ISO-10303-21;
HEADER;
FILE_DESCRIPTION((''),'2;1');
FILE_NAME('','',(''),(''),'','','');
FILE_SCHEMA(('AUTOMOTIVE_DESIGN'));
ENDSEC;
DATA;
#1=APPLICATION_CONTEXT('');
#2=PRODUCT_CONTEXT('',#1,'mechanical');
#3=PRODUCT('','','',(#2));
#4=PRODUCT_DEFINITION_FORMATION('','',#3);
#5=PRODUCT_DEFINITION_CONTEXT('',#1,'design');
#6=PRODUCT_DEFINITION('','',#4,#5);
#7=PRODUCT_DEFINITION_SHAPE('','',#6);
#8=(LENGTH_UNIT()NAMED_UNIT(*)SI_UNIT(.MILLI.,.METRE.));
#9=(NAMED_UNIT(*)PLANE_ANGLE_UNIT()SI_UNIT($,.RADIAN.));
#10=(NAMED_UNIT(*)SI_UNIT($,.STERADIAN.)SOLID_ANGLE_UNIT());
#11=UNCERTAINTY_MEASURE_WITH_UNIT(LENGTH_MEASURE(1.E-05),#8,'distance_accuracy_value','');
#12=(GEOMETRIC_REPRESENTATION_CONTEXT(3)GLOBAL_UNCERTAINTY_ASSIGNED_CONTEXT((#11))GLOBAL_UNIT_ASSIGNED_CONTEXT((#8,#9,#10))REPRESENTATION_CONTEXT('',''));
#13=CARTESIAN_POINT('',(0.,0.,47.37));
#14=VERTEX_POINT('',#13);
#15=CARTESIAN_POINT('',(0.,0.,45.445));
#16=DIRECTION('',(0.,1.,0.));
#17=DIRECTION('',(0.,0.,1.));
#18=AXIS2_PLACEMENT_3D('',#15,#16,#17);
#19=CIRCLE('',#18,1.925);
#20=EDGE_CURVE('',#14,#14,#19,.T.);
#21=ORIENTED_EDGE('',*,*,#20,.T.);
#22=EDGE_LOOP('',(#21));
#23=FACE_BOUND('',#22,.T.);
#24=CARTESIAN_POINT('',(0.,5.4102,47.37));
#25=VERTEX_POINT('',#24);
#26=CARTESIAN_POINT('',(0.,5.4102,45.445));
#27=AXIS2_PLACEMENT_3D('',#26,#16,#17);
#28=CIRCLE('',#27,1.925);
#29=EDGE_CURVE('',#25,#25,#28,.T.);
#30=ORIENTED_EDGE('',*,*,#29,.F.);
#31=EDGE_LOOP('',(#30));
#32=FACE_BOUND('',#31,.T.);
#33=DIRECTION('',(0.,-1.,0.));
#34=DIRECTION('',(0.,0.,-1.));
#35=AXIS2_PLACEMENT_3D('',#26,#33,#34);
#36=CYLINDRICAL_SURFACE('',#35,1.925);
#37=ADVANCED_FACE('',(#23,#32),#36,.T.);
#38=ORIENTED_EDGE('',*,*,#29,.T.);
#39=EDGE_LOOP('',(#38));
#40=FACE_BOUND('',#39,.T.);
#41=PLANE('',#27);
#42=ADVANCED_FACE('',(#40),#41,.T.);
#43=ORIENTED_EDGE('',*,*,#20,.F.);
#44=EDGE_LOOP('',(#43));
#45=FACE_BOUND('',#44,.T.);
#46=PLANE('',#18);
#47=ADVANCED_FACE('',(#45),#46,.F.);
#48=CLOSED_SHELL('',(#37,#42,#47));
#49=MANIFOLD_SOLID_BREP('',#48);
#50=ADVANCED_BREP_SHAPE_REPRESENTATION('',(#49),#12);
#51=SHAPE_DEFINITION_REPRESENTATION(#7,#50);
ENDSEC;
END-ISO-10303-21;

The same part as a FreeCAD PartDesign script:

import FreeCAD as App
import Part
import Sketcher

V = App.Vector
Q = App.Units.Quantity

doc = App.newDocument("Part")
body = doc.addObject("PartDesign::Body", "Body")

sketch1 = body.newObject("Sketcher::SketchObject", "Sketch")
sketch1.AttachmentSupport = (doc.getObject("XZ_Plane"), [""])
sketch1.MapMode = "FlatFace"
sketch1.addGeometry(Part.Circle(V(0, 45.4, 0), V(0, 0, 1), 1.9), False)
sketch1.addConstraint(Sketcher.Constraint("PointOnObject", 0, 3, -2))
sketch1.addConstraint(Sketcher.Constraint("Diameter", 0, Q("3.85 mm")))
sketch1.addConstraint(Sketcher.Constraint("DistanceY", -1, 1, 0, 3, Q("45.445 mm")))
pad1 = body.newObject("PartDesign::Pad", "Pad")
pad1.Profile = sketch1
pad1.Length = Q("0.213 in")
pad1.Reversed = True

doc.recompute()
